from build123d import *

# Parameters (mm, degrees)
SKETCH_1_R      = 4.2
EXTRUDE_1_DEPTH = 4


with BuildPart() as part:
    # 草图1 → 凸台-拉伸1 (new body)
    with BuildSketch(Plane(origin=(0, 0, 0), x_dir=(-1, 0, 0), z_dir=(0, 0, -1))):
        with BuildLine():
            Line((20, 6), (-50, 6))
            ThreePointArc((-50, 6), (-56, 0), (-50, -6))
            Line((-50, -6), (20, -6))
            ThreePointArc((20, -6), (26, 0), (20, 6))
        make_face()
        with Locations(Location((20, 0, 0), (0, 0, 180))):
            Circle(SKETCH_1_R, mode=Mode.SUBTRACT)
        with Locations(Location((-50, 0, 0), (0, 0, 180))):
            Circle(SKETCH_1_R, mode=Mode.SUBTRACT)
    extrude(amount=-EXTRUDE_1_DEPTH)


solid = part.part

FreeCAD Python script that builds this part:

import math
import FreeCAD as App
import Part
import Sketcher

doc = App.newDocument("Part")
body = doc.addObject("PartDesign::Body", "Body")

sketch1 = body.newObject("Sketcher::SketchObject", "Sketch")
sketch1.AttachmentSupport = (doc.getObject("XY_Plane"), [""])
sketch1.MapMode = "FlatFace"
sketch1.addGeometry([
    Part.LineSegment(App.Vector(-20, 6, 0), App.Vector(50, 6, 0)),
    Part.ArcOfCircle(Part.Circle(App.Vector(50, 0, 0), App.Vector(0, 0, 1), 6), math.radians(-90), math.radians(90)),
    Part.LineSegment(App.Vector(50, -6, 0), App.Vector(-20, -6, 0)),
    Part.ArcOfCircle(Part.Circle(App.Vector(-20, 0, 0), App.Vector(0, 0, 1), 6), math.radians(90), math.radians(270)),
    Part.Circle(App.Vector(50, 0, 0), App.Vector(0, 0, 1), 4.2),
    Part.Circle(App.Vector(-20, 0, 0), App.Vector(0, 0, 1), 4.2),
], False)
sketch1.addConstraint([
    Sketcher.Constraint("Tangent", 0, 2, 1, 2),
    Sketcher.Constraint("Tangent", 1, 1, 2, 1),
    Sketcher.Constraint("Tangent", 2, 2, 3, 2),
    Sketcher.Constraint("Tangent", 3, 1, 0, 1),
    Sketcher.Constraint("Horizontal", 0),
    Sketcher.Constraint("Horizontal", 2),
    Sketcher.Constraint("Coincident", 4, 3, 1, 3),
    Sketcher.Constraint("Coincident", 5, 3, 3, 3),
    Sketcher.Constraint("Equal", 4, 5),
    Sketcher.Constraint("PointOnObject", 1, 3, -1),
    Sketcher.Constraint("Radius", 1, 6.0),
    Sketcher.Constraint("Diameter", 4, 8.4),
    Sketcher.Constraint("DistanceX", 0, 1, 0, 2, 70.0),
    Sketcher.Constraint("DistanceX", -1, 1, 1, 3, 50.0),
])
pad1 = body.newObject("PartDesign::Pad", "Pad")
pad1.Profile = sketch1
pad1.Length = 4

doc.recompute()
